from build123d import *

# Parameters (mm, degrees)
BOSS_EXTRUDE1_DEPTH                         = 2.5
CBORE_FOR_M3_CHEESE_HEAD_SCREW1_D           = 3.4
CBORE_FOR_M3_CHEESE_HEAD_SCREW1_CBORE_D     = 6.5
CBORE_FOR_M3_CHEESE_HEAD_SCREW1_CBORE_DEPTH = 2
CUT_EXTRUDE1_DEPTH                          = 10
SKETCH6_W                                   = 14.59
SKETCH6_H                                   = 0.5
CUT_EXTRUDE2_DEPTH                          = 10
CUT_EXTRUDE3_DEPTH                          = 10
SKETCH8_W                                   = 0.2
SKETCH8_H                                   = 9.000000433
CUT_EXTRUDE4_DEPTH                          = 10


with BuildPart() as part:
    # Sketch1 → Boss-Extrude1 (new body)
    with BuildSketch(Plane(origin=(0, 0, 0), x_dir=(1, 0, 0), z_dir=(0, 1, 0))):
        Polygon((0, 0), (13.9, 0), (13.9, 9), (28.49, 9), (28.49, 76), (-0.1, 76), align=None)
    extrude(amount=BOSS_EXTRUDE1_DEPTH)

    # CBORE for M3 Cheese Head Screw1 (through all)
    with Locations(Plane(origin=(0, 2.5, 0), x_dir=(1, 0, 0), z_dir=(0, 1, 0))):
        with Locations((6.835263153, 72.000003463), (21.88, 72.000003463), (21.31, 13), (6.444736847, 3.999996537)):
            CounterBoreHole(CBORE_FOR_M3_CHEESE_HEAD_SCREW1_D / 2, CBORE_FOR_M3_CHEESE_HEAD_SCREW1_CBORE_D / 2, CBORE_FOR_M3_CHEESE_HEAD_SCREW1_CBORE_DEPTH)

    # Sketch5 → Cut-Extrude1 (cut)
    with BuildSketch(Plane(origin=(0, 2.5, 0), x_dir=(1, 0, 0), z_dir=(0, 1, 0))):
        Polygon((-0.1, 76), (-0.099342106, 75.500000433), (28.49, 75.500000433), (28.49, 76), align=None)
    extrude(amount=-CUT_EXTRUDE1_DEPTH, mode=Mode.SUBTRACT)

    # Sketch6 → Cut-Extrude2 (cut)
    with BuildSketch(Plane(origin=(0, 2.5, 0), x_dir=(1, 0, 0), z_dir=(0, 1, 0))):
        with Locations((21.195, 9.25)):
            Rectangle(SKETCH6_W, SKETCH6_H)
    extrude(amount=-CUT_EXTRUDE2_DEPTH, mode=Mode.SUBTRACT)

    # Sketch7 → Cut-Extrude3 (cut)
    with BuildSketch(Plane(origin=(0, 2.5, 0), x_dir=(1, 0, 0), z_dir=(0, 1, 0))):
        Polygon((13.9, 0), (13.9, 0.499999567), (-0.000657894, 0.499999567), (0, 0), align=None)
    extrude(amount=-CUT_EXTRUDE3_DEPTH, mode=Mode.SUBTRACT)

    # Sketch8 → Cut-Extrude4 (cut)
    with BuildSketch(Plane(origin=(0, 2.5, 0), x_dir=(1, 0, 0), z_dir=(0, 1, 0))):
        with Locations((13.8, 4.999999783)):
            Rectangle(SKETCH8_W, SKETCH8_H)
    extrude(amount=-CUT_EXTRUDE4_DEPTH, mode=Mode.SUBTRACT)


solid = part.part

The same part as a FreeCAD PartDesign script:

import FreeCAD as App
import Part
import Sketcher

doc = App.newDocument("Part")
body = doc.addObject("PartDesign::Body", "Body")

# Sketch on XZ plane
sketch1 = body.newObject("Sketcher::SketchObject", "Sketch")
sketch1.AttachmentSupport = (doc.getObject("XZ_Plane"), [""])
sketch1.MapMode = "FlatFace"
sketch1.addGeometry([
    Part.LineSegment(App.Vector(0, 0, 0), App.Vector(14, 0, 0)),  # 0
    Part.LineSegment(App.Vector(14, 0, 0), App.Vector(14, -9, 0)),  # 1
    Part.LineSegment(App.Vector(14, -9, 0), App.Vector(28, -9, 0)),  # 2
    Part.LineSegment(App.Vector(28, -9, 0), App.Vector(28, -76, 0)),  # 3
    Part.LineSegment(App.Vector(28, -76, 0), App.Vector(0, -76, 0)),  # 4
    Part.LineSegment(App.Vector(0, -76, 0), App.Vector(0, 0, 0)),  # 5
], False)
sketch1.addConstraint([
    Sketcher.Constraint("Coincident", 0, 2, 1, 1),
    Sketcher.Constraint("Coincident", 1, 2, 2, 1),
    Sketcher.Constraint("Coincident", 2, 2, 3, 1),
    Sketcher.Constraint("Coincident", 3, 2, 4, 1),
    Sketcher.Constraint("Coincident", 4, 2, 5, 1),
    Sketcher.Constraint("Coincident", 5, 2, 0, 1),
    Sketcher.Constraint("Horizontal", 0),
    Sketcher.Constraint("Vertical", 1),
    Sketcher.Constraint("Horizontal", 2),
    Sketcher.Constraint("Vertical", 3),
    Sketcher.Constraint("Horizontal", 4),
    Sketcher.Constraint("Coincident", 5, 2, -1, 1),
    Sketcher.Constraint("DistanceY", 1, 2, 1, 1, 9.0),
    Sketcher.Constraint("DistanceY", 3, 2, 3, 1, 67.0),
    Sketcher.Constraint("DistanceX", 0, 1, 0, 2, 13.9),
    Sketcher.Constraint("DistanceX", 4, 2, 1, 2, 14.0),
    Sketcher.Constraint("DistanceX", 2, 1, 2, 2, 14.59),
])
pad1 = body.newObject("PartDesign::Pad", "Pad")
pad1.Profile = sketch1
pad1.Length = 2.5
pad1.Reversed = True

# Sketch on XZ plane
sketch2 = body.newObject("Sketcher::SketchObject", "Sketch001")
sketch2.AttachmentSupport = (doc.getObject("XZ_Plane"), [""])
sketch2.MapMode = "FlatFace"
sketch2.AttachmentOffset = App.Placement(App.Vector(0, 0, -2.5), App.Rotation())
sketch2.addGeometry([
    Part.Circle(App.Vector(6.8, -72, 0), App.Vector(0, 0, 1), 1.7),
    Part.Circle(App.Vector(21.9, -72, 0), App.Vector(0, 0, 1), 1.7),
    Part.Circle(App.Vector(21.3, -13, 0), App.Vector(0, 0, 1), 1.7),
    Part.Circle(App.Vector(6.4, -4, 0), App.Vector(0, 0, 1), 1.7),
], False)
sketch2.addConstraint([
    Sketcher.Constraint("Equal", 0, 1),
    Sketcher.Constraint("Equal", 1, 2),
    Sketcher.Constraint("Equal", 2, 3),
    Sketcher.Constraint("Horizontal", 0, 3, 1, 3),
    Sketcher.Constraint("Diameter", 0, 3.4),
    Sketcher.Constraint("DistanceY", 2, 3, -1, 1, 13.0),
    Sketcher.Constraint("DistanceX", -1, 1, 1, 3, 21.88),
    Sketcher.Constraint("DistanceX", -1, 1, 2, 3, 21.31),
    Sketcher.Constraint("DistanceX", -1, 1, 0, 3, 6.835263),
    Sketcher.Constraint("DistanceY", 0, 3, -1, 1, 72.000003),
    Sketcher.Constraint("DistanceX", -1, 1, 3, 3, 6.444737),
    Sketcher.Constraint("DistanceY", 3, 3, -1, 1, 3.999997),
])
doc.recompute()
hole = body.newObject("PartDesign::Hole", "Hole")
hole.Profile = sketch2
hole.ThreadType = "None"
hole.Diameter = 3.4
hole.DepthType = "ThroughAll"
hole.HoleCutType = "Counterbore"
hole.HoleCutDiameter = 6.5
hole.HoleCutDepth = 2
hole.Reversed = True

# Sketch on XZ plane
sketch3 = body.newObject("Sketcher::SketchObject", "Sketch002")
sketch3.AttachmentSupport = (doc.getObject("XZ_Plane"), [""])
sketch3.MapMode = "FlatFace"
sketch3.AttachmentOffset = App.Placement(App.Vector(0, 0, -2.5), App.Rotation())
sketch3.addGeometry([
    Part.LineSegment(App.Vector(-0.1, -76, 0), App.Vector(-0.1, -75.5, 0)),
    Part.LineSegment(App.Vector(-0.1, -75.5, 0), App.Vector(28.49, -75.5, 0)),
    Part.LineSegment(App.Vector(28.49, -75.5, 0), App.Vector(28.49, -76, 0)),
    Part.LineSegment(App.Vector(28.49, -76, 0), App.Vector(-0.1, -76, 0)),
], False)
sketch3.addConstraint([
    Sketcher.Constraint("Coincident", 0, 2, 1, 1),
    Sketcher.Constraint("Coincident", 1, 2, 2, 1),
    Sketcher.Constraint("Coincident", 2, 2, 3, 1),
    Sketcher.Constraint("Coincident", 3, 2, 0, 1),
    Sketcher.Constraint("Horizontal", 1),
    Sketcher.Constraint("Vertical", 2),
    Sketcher.Constraint("Horizontal", 3),
    Sketcher.Constraint("DistanceY", 2, 2, 2, 1, 0.5),
    Sketcher.Constraint("DistanceY", 2, 2, -1, 1, 76.0),
    Sketcher.Constraint("DistanceX", 3, 2, 3, 1, 28.59),
    Sketcher.Constraint("DistanceX", 3, 2, -1, 1, 0.1),
    Sketcher.Constraint("DistanceX", 1, 1, 1, 2, 28.589342),
])
pocket1 = body.newObject("PartDesign::Pocket", "Pocket")
pocket1.Profile = sketch3
pocket1.Length = 10
pocket1.Reversed = True

# Sketch on XZ plane
sketch4 = body.newObject("Sketcher::SketchObject", "Sketch003")
sketch4.AttachmentSupport = (doc.getObject("XZ_Plane"), [""])
sketch4.MapMode = "FlatFace"
sketch4.AttachmentOffset = App.Placement(App.Vector(0, 0, -2.5), App.Rotation())
sketch4.addGeometry([
    Part.LineSegment(App.Vector(13.9, -9.5, 0), App.Vector(13.9, -9, 0)),
    Part.LineSegment(App.Vector(13.9, -9, 0), App.Vector(28.5, -9, 0)),
    Part.LineSegment(App.Vector(28.5, -9, 0), App.Vector(28.5, -9.5, 0)),
    Part.LineSegment(App.Vector(28.5, -9.5, 0), App.Vector(13.9, -9.5, 0)),
], False)
sketch4.addConstraint([
    Sketcher.Constraint("Coincident", 0, 2, 1, 1),
    Sketcher.Constraint("Coincident", 1, 2, 2, 1),
    Sketcher.Constraint("Coincident", 2, 2, 3, 1),
    Sketcher.Constraint("Coincident", 3, 2, 0, 1),
    Sketcher.Constraint("Vertical", 0),
    Sketcher.Constraint("Horizontal", 1),
    Sketcher.Constraint("Vertical", 2),
    Sketcher.Constraint("Horizontal", 3),
    Sketcher.Constraint("DistanceY", 0, 1, 0, 2, 0.5),
    Sketcher.Constraint("DistanceY", 0, 2, -1, 1, 9.0),
    Sketcher.Constraint("DistanceX", 1, 1, 1, 2, 14.59),
    Sketcher.Constraint("DistanceX", -1, 1, 0, 2, 13.9),
])
pocket2 = body.newObject("PartDesign::Pocket", "Pocket001")
pocket2.Profile = sketch4
pocket2.Length = 10
pocket2.Reversed = True

# Sketch on XZ plane
sketch5 = body.newObject("Sketcher::SketchObject", "Sketch004")
sketch5.AttachmentSupport = (doc.getObject("XZ_Plane"), [""])
sketch5.MapMode = "FlatFace"
sketch5.AttachmentOffset = App.Placement(App.Vector(0, 0, -2.5), App.Rotation())
sketch5.addGeometry([
    Part.LineSegment(App.Vector(13.9, 0, 0), App.Vector(13.9, -0.5, 0)),
    Part.LineSegment(App.Vector(13.9, -0.5, 0), App.Vector(0, -0.5, 0)),
    Part.LineSegment(App.Vector(0, -0.5, 0), App.Vector(0, 0, 0)),
    Part.LineSegment(App.Vector(0, 0, 0), App.Vector(13.9, 0, 0)),
], False)
sketch5.addConstraint([
    Sketcher.Constraint("Coincident", 0, 2, 1, 1),
    Sketcher.Constraint("Coincident", 1, 2, 2, 1),
    Sketcher.Constraint("Coincident", 2, 2, 3, 1),
    Sketcher.Constraint("Coincident", 3, 2, 0, 1),
    Sketcher.Constraint("Vertical", 0),
    Sketcher.Constraint("Horizontal", 1),
    Sketcher.Constraint("Horizontal", 3),
    Sketcher.Constraint("Coincident", 2, 2, -1, 1),
    Sketcher.Constraint("DistanceX", 3, 1, 3, 2, 13.9),
    Sketcher.Constraint("DistanceY", 0, 2, 0, 1, 0.5),
    Sketcher.Constraint("DistanceX", 1, 2, 1, 1, 13.900658),
])
pocket3 = body.newObject("PartDesign::Pocket", "Pocket002")
pocket3.Profile = sketch5
pocket3.Length = 10
pocket3.Reversed = True

# Sketch on XZ plane
sketch6 = body.newObject("Sketcher::SketchObject", "Sketch005")
sketch6.AttachmentSupport = (doc.getObject("XZ_Plane"), [""])
sketch6.MapMode = "FlatFace"
sketch6.AttachmentOffset = App.Placement(App.Vector(0, 0, -2.5), App.Rotation())
sketch6.addGeometry([
    Part.LineSegment(App.Vector(13.7, -9.5, 0), App.Vector(13.7, -0.5, 0)),
    Part.LineSegment(App.Vector(13.7, -0.5, 0), App.Vector(13.9, -0.5, 0)),
    Part.LineSegment(App.Vector(13.9, -0.5, 0), App.Vector(13.9, -9.5, 0)),
    Part.LineSegment(App.Vector(13.9, -9.5, 0), App.Vector(13.7, -9.5, 0)),
], False)
sketch6.addConstraint([
    Sketcher.Constraint("Coincident", 0, 2, 1, 1),
    Sketcher.Constraint("Coincident", 1, 2, 2, 1),
    Sketcher.Constraint("Coincident", 2, 2, 3, 1),
    Sketcher.Constraint("Coincident", 3, 2, 0, 1),
    Sketcher.Constraint("Vertical", 0),
    Sketcher.Constraint("Horizontal", 1),
    Sketcher.Constraint("Vertical", 2),
    Sketcher.Constraint("Horizontal", 3),
    Sketcher.Constraint("DistanceY", 0, 1, 0, 2, 9.0),
    Sketcher.Constraint("DistanceX", 1, 1, 1, 2, 0.2),
    Sketcher.Constraint("DistanceX", -1, 1, 0, 2, 13.7),
    Sketcher.Constraint("DistanceY", 0, 2, -1, 1, 0.5),
])
pocket4 = body.newObject("PartDesign::Pocket", "Pocket003")
pocket4.Profile = sketch6
pocket4.Length = 10
pocket4.Reversed = True

doc.recompute()
